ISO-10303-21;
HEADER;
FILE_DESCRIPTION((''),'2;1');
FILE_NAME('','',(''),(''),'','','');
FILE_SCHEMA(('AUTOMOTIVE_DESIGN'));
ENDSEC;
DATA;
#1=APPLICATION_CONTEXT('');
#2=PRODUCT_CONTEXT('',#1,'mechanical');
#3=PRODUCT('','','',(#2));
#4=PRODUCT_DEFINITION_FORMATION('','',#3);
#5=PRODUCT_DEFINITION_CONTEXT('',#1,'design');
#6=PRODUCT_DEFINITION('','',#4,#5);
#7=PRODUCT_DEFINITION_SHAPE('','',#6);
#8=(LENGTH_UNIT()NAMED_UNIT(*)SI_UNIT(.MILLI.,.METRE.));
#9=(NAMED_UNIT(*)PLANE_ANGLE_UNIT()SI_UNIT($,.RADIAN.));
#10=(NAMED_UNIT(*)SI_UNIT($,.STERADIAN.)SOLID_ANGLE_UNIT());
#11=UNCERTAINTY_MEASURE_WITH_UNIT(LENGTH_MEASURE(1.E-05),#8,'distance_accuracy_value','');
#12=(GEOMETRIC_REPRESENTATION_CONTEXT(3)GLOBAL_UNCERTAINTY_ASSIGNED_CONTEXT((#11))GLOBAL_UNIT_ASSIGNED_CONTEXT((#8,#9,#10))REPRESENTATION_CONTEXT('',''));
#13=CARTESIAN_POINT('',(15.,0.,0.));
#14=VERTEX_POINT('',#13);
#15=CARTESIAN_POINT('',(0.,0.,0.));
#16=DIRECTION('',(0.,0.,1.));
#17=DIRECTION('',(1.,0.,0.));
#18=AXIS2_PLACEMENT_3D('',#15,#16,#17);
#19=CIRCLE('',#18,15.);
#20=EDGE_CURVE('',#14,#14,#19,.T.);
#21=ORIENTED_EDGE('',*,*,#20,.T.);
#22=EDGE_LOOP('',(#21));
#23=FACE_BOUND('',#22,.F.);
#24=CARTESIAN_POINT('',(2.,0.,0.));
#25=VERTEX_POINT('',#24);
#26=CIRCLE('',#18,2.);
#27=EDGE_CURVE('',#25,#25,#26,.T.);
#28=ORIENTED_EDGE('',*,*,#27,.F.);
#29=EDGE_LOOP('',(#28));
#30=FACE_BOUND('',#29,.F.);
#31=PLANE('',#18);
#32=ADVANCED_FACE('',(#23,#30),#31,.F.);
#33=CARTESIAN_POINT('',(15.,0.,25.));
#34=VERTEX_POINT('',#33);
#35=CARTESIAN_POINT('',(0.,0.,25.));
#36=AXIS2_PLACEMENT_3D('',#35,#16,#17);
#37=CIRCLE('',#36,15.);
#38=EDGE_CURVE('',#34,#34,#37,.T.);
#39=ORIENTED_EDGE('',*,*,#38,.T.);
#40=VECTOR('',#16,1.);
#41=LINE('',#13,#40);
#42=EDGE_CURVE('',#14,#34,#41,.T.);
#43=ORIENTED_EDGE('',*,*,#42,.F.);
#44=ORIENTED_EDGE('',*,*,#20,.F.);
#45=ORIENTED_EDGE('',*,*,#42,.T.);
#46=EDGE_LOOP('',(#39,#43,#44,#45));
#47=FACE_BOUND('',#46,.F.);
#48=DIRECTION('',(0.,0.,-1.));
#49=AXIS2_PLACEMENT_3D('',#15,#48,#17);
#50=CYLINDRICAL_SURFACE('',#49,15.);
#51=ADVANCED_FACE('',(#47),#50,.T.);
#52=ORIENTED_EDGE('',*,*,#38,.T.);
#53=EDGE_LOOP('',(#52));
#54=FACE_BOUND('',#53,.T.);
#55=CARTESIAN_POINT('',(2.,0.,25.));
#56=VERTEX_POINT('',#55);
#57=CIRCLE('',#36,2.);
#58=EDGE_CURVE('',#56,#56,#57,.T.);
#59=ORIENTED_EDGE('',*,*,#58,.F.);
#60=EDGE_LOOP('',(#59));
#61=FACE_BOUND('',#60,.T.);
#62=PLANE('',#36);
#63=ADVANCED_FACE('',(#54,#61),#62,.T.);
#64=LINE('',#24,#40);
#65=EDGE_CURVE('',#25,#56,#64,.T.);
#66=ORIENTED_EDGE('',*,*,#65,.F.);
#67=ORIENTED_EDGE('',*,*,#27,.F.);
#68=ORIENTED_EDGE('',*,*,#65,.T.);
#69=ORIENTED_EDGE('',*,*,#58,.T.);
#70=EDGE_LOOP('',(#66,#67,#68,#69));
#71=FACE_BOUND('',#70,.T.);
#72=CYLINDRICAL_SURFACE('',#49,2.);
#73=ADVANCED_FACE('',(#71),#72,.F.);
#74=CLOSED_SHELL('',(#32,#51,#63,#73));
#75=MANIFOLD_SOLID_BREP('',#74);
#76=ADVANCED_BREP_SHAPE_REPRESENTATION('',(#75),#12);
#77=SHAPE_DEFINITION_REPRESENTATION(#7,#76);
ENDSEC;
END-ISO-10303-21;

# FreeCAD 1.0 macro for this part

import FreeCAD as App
import Part
import Sketcher

V = App.Vector
Q = App.Units.Quantity

doc = App.newDocument("Part")
body = doc.addObject("PartDesign::Body", "Body")

sketch1 = body.newObject("Sketcher::SketchObject", "Sketch")
sketch1.AttachmentSupport = (doc.getObject("XY_Plane"), [""])
sketch1.MapMode = "FlatFace"
sketch1.addGeometry([
    Part.Circle(V(0, 0, 0), V(0, 0, 1), 15),
    Part.Circle(V(0, 0, 0), V(0, 0, 1), 2),
], False)
sketch1.addConstraint([
    Sketcher.Constraint("Coincident", 0, 3, -1, 1),
    Sketcher.Constraint("Coincident", 1, 3, -1, 1),
    Sketcher.Constraint("Diameter", 0, Q("30 mm")),
    Sketcher.Constraint("Diameter", 1, Q("4 mm")),
])
pad1 = body.newObject("PartDesign::Pad", "Pad")
pad1.Profile = sketch1
pad1.Length = 25

doc.recompute()
